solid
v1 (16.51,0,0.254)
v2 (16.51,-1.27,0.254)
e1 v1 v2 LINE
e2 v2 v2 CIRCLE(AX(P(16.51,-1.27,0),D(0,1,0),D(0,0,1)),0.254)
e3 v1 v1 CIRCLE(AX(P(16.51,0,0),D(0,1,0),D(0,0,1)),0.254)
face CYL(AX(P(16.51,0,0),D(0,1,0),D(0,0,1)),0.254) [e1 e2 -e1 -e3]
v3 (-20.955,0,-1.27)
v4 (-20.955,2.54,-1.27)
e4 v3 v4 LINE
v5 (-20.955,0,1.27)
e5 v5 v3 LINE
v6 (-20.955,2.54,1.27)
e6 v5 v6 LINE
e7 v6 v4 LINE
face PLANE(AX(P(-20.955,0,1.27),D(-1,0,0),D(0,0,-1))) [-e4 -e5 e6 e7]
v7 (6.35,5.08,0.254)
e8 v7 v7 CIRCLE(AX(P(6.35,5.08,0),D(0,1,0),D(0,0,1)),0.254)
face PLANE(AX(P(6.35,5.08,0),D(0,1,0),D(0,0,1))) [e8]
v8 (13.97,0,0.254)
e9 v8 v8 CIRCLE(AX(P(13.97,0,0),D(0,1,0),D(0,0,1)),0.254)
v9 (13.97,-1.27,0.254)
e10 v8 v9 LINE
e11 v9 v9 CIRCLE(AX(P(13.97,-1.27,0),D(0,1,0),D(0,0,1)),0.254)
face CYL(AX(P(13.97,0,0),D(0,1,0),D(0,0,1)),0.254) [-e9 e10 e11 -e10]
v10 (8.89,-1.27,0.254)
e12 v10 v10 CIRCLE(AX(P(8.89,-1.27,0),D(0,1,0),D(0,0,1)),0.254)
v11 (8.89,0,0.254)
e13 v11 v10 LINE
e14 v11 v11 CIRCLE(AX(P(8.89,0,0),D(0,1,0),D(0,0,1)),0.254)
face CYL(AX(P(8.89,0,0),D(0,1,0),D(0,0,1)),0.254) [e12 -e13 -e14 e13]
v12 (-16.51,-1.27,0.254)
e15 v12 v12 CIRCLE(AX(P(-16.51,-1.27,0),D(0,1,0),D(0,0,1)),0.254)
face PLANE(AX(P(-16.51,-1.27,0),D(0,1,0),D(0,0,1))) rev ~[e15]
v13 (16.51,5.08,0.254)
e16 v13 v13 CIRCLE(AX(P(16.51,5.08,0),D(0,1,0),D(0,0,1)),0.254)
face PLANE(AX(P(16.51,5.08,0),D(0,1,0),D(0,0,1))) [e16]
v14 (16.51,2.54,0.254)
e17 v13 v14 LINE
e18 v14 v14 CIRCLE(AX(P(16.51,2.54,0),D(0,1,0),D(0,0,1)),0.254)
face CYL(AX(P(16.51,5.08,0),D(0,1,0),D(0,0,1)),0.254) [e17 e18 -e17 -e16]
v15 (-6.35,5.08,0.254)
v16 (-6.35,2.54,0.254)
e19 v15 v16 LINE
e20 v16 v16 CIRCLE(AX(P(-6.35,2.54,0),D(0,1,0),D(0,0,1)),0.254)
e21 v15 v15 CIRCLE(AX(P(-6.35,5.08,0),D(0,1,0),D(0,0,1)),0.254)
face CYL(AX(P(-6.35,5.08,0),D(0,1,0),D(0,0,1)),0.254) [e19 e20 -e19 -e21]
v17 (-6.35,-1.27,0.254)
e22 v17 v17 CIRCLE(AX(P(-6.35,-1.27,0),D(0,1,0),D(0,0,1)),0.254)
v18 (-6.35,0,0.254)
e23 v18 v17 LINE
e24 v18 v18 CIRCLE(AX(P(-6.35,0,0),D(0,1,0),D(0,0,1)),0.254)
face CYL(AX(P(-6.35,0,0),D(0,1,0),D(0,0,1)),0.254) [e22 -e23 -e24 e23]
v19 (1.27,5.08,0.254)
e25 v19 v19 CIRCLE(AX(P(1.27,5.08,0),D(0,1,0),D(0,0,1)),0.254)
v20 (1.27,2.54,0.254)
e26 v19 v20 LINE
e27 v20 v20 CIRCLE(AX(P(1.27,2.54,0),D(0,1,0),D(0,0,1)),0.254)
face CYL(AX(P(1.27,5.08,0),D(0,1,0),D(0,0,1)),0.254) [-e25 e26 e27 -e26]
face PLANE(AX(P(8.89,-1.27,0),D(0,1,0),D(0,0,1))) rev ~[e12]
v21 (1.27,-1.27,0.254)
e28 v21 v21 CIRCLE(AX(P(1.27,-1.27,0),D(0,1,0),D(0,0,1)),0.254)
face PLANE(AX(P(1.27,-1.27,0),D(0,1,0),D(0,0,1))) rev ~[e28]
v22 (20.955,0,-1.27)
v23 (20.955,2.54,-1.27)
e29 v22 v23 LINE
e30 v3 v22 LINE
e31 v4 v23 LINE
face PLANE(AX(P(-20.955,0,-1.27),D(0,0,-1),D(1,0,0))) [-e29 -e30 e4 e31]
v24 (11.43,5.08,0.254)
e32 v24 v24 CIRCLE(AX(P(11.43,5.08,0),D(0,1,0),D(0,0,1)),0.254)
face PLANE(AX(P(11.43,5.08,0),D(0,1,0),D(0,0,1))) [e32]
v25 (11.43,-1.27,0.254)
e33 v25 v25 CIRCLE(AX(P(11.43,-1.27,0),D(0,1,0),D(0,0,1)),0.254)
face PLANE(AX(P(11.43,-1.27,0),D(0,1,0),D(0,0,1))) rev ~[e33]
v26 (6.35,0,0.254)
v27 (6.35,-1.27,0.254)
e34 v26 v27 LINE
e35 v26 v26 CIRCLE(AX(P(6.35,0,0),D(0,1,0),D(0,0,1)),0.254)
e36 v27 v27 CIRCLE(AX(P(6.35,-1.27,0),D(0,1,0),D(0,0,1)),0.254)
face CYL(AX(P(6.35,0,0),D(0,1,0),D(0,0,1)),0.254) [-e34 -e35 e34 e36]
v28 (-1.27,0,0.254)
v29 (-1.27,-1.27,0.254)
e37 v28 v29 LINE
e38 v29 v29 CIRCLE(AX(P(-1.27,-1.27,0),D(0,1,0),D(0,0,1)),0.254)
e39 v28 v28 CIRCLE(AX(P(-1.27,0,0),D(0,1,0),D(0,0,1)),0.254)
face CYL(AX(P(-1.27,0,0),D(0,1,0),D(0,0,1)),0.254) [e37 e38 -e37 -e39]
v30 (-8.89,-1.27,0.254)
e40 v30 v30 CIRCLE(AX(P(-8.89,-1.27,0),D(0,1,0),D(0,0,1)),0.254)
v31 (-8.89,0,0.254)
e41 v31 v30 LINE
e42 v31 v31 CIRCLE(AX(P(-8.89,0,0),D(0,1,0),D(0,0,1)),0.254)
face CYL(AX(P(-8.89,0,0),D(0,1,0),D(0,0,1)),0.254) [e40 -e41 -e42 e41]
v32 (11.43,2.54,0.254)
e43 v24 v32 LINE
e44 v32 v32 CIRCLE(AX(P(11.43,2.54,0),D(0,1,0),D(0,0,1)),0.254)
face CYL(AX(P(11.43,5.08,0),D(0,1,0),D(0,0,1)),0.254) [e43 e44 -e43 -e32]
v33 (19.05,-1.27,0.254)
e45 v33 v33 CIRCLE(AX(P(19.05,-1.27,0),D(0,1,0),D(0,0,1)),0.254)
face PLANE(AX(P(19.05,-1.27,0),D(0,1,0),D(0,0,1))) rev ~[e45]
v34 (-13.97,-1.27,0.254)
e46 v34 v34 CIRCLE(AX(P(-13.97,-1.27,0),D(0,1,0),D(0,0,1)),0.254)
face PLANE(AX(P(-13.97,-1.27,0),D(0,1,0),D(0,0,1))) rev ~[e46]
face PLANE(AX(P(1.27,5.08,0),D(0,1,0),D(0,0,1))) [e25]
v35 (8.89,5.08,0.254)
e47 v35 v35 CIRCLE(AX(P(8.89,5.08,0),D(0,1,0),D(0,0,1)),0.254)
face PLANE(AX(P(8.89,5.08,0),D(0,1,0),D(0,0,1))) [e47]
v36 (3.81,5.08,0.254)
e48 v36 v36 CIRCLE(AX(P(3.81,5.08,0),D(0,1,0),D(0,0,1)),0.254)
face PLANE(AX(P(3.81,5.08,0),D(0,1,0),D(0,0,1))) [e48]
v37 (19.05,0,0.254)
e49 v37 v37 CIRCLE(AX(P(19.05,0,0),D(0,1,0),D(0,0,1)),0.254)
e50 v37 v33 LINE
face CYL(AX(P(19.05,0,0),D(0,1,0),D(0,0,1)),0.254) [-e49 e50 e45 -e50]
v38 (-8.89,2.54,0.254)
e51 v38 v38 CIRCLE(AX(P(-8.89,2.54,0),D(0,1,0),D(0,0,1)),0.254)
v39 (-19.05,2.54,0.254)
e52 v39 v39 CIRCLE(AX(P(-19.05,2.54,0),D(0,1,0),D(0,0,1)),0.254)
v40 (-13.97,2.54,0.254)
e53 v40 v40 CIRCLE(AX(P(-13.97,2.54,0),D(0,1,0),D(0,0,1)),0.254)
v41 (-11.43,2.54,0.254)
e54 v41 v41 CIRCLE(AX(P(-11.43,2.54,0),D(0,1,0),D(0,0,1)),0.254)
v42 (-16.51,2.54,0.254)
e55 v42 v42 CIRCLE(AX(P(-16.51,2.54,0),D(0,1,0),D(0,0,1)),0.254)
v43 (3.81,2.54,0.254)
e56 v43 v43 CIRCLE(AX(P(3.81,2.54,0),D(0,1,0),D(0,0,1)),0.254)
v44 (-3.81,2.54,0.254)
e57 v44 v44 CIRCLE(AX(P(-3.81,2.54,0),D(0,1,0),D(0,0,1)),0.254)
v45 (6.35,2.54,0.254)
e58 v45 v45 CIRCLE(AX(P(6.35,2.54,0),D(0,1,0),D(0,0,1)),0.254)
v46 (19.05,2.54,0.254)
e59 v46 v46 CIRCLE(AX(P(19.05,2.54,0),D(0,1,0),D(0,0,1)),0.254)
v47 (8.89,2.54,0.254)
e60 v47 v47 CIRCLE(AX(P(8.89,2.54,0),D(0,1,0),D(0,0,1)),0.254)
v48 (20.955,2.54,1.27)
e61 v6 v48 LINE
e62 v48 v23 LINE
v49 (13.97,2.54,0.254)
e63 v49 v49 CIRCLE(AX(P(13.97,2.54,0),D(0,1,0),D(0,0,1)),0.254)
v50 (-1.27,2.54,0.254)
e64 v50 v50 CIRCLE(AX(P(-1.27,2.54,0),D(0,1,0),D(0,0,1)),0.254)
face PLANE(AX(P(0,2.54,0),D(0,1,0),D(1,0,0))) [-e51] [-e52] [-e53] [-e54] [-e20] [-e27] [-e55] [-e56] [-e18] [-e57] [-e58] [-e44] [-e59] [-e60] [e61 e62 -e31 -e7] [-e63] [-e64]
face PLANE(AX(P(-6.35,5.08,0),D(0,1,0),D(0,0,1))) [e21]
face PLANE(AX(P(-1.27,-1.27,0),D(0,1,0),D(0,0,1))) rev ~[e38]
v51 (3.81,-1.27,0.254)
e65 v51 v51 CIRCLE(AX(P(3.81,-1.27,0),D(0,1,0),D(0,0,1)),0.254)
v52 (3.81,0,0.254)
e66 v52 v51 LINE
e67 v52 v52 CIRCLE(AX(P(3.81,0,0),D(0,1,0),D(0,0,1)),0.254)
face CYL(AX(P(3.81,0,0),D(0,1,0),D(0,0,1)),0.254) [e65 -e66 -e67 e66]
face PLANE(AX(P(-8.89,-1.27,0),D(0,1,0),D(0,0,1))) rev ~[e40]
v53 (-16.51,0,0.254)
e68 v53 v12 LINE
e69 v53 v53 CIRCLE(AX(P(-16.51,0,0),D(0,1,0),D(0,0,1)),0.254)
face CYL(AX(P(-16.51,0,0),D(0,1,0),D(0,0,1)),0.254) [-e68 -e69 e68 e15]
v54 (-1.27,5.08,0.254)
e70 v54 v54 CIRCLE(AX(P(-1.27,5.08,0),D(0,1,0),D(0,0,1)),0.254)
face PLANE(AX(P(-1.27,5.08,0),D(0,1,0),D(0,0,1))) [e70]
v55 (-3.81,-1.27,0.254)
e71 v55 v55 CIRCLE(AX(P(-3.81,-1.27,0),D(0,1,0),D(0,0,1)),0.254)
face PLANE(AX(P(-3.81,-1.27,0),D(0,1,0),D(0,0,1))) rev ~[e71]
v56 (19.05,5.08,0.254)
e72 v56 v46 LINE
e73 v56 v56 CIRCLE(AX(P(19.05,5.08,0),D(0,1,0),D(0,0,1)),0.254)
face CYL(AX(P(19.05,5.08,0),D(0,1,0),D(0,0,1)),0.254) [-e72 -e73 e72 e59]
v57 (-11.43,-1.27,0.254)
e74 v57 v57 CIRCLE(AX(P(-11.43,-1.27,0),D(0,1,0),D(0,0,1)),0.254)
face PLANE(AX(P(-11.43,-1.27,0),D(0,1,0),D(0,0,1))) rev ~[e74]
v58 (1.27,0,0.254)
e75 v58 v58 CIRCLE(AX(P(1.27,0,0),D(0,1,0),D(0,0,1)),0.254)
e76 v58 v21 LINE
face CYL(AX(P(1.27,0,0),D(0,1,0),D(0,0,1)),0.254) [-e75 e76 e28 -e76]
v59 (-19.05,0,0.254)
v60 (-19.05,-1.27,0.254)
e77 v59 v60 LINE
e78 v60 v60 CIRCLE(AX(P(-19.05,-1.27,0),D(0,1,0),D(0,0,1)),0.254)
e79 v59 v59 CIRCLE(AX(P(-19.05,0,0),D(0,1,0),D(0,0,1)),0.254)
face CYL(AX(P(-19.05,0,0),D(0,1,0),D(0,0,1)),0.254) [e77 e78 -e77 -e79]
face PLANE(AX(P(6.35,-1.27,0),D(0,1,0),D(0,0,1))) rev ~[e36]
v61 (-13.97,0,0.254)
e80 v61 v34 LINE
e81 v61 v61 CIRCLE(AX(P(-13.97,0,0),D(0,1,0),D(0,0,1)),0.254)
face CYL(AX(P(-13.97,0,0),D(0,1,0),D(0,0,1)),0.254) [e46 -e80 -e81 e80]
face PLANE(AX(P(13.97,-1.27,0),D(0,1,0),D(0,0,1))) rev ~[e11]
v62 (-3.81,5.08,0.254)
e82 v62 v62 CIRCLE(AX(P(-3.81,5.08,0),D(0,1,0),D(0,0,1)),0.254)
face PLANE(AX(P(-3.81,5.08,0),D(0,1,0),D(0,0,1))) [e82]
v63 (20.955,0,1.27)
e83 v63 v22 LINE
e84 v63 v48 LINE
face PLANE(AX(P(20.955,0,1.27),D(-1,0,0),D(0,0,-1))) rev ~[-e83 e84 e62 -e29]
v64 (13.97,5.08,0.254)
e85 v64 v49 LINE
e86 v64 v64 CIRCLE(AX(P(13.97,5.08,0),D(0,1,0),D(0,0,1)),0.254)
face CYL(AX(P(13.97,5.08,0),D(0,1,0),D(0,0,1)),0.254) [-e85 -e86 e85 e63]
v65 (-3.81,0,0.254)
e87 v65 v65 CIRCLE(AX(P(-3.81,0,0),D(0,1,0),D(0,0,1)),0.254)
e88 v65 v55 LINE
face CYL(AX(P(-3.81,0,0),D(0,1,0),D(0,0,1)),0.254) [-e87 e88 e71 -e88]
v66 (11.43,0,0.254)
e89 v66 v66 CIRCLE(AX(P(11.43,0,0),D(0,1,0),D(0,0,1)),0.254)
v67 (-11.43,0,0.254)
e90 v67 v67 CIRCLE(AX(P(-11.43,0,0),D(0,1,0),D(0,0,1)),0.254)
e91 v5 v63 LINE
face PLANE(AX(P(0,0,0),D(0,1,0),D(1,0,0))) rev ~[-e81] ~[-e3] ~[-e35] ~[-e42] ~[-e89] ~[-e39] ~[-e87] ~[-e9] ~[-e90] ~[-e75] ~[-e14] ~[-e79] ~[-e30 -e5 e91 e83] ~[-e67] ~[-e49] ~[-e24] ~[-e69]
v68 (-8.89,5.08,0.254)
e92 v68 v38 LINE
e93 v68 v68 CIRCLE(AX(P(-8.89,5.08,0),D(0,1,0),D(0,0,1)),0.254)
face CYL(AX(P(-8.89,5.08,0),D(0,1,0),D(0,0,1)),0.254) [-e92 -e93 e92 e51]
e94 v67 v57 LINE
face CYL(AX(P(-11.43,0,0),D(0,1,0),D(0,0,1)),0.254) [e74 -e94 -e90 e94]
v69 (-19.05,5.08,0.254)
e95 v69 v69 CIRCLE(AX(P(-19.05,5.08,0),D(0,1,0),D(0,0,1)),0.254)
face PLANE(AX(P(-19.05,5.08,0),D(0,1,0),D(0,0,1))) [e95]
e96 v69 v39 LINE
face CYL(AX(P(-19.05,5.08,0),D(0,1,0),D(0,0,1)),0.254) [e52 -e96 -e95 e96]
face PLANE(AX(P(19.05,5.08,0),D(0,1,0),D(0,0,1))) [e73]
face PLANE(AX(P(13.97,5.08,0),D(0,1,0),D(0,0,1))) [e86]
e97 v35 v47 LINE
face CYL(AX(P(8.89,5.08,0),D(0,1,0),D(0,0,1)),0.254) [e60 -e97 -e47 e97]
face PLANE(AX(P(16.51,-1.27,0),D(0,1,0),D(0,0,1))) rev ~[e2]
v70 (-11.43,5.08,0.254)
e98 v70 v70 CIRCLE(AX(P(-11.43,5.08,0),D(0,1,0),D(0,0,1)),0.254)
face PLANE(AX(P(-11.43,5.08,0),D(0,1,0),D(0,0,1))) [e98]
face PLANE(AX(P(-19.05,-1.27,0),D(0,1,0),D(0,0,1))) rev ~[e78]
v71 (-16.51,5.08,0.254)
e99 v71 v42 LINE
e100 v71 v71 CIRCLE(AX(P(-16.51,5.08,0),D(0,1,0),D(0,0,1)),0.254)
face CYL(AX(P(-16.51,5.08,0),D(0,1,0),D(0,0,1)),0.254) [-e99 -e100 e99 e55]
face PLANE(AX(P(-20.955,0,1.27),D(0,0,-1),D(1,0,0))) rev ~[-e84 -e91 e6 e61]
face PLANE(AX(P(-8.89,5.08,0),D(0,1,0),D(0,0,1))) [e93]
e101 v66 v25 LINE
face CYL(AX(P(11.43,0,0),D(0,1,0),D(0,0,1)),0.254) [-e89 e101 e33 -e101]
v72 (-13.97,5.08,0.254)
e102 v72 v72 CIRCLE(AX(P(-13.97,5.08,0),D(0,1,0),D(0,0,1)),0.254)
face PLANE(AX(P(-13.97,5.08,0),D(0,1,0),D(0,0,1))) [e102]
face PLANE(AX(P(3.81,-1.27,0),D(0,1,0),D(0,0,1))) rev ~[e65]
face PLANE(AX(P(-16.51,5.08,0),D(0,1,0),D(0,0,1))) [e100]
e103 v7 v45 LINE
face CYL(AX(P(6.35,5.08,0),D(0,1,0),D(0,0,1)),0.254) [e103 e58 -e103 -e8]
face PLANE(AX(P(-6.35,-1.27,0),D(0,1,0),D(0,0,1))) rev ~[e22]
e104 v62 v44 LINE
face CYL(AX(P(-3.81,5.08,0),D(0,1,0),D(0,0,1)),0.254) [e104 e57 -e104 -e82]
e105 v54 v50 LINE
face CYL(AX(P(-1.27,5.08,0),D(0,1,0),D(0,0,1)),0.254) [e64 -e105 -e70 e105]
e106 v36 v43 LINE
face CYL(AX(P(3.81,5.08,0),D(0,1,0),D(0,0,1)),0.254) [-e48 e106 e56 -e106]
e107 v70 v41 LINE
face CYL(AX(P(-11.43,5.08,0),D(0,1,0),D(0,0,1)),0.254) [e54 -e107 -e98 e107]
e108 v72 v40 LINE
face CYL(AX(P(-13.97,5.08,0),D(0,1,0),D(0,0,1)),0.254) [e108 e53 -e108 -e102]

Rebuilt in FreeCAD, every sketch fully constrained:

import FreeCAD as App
import Part
import Sketcher

V = App.Vector
Q = App.Units.Quantity


def add_polygon(sketch, points):
    """Adds a closed chain of lines whose ends are joined by coincident constraints."""
    first, n = sketch.GeometryCount, len(points)
    for a, b in zip(points, points[1:] + points[:1]):
        sketch.addGeometry(Part.LineSegment(App.Vector(*a, 0), App.Vector(*b, 0)), False)
    for i in range(n):
        sketch.addConstraint(Sketcher.Constraint("Coincident", first + i, 2, first + (i + 1) % n, 1))

doc = App.newDocument("Part")
body = doc.addObject("PartDesign::Body", "Body")

# Sketch on XZ plane
sketch1 = body.newObject("Sketcher::SketchObject", "Sketch")
sketch1.AttachmentSupport = (doc.getObject("XZ_Plane"), [""])
sketch1.MapMode = "FlatFace"
add_polygon(sketch1, [(-21, -1.3), (-21, 1.3), (21, 1.3), (21, -1.3)])  # lines 0-3
sketch1.addConstraint([
    Sketcher.Constraint("Vertical", 0),
    Sketcher.Constraint("Horizontal", 1),
    Sketcher.Constraint("Vertical", 2),
    Sketcher.Constraint("Horizontal", 3),
    Sketcher.Constraint("Symmetric", 0, 2, 2, 2, -1, 1),
    Sketcher.Constraint("DistanceY", 0, 1, 0, 2, Q("0.1 in")),
    Sketcher.Constraint("DistanceX", 1, 1, 1, 2, Q("1.65 in")),
])
pad1 = body.newObject("PartDesign::Pad", "Pad")
pad1.Profile = sketch1
pad1.Length = Q("0.1 in")
pad1.Reversed = True

# Sketch on XZ plane
sketch2 = body.newObject("Sketcher::SketchObject", "Sketch001")
sketch2.AttachmentSupport = (doc.getObject("XZ_Plane"), [""])
sketch2.MapMode = "FlatFace"
sketch2.addGeometry([
    Part.Circle(V(19.05, 0, 0), V(0, 0, 1), 0.25),  # 0
    Part.Circle(V(16.51, 0, 0), V(0, 0, 1), 0.25),  # 1
    Part.Circle(V(13.97, 0, 0), V(0, 0, 1), 0.25),  # 2
    Part.Circle(V(11.43, 0, 0), V(0, 0, 1), 0.25),  # 3
    Part.Circle(V(8.89, 0, 0), V(0, 0, 1), 0.25),  # 4
    Part.Circle(V(6.35, 0, 0), V(0, 0, 1), 0.25),  # 5
    Part.Circle(V(3.81, 0, 0), V(0, 0, 1), 0.25),  # 6
    Part.Circle(V(1.27, 0, 0), V(0, 0, 1), 0.25),  # 7
    Part.Circle(V(-1.27, 0, 0), V(0, 0, 1), 0.25),  # 8
    Part.Circle(V(-3.81, 0, 0), V(0, 0, 1), 0.25),  # 9
    Part.Circle(V(-6.35, 0, 0), V(0, 0, 1), 0.25),  # 10
    Part.Circle(V(-8.89, 0, 0), V(0, 0, 1), 0.25),  # 11
    Part.Circle(V(-11.43, 0, 0), V(0, 0, 1), 0.25),  # 12
    Part.Circle(V(-13.97, 0, 0), V(0, 0, 1), 0.25),  # 13
    Part.Circle(V(-16.51, 0, 0), V(0, 0, 1), 0.25),  # 14
    Part.Circle(V(-19.05, 0, 0), V(0, 0, 1), 0.25),  # 15
], False)
sketch2.addConstraint([
    Sketcher.Constraint("Equal", 0, 1),
    Sketcher.Constraint("Equal", 1, 2),
    Sketcher.Constraint("Equal", 2, 3),
    Sketcher.Constraint("Equal", 3, 4),
    Sketcher.Constraint("Equal", 4, 5),
    Sketcher.Constraint("Equal", 5, 6),
    Sketcher.Constraint("Equal", 6, 7),
    Sketcher.Constraint("Equal", 7, 8),
    Sketcher.Constraint("Equal", 8, 9),
    Sketcher.Constraint("Equal", 9, 10),
    Sketcher.Constraint("Equal", 10, 11),
    Sketcher.Constraint("Equal", 11, 12),
    Sketcher.Constraint("Equal", 12, 13),
    Sketcher.Constraint("Equal", 13, 14),
    Sketcher.Constraint("Equal", 14, 15),
    Sketcher.Constraint("Symmetric", 7, 3, 8, 3, -1, 1),
    Sketcher.Constraint("Symmetric", 6, 3, 9, 3, -1, 1),
    Sketcher.Constraint("Symmetric", 5, 3, 10, 3, -1, 1),
    Sketcher.Constraint("Symmetric", 4, 3, 11, 3, -1, 1),
    Sketcher.Constraint("Symmetric", 3, 3, 12, 3, -1, 1),
    Sketcher.Constraint("Symmetric", 2, 3, 13, 3, -1, 1),
    Sketcher.Constraint("Symmetric", 1, 3, 14, 3, -1, 1),
    Sketcher.Constraint("Symmetric", 0, 3, 15, 3, -1, 1),
    Sketcher.Constraint("PointOnObject", 0, 3, -1),
    Sketcher.Constraint("PointOnObject", 1, 3, -1),
    Sketcher.Constraint("PointOnObject", 2, 3, -1),
    Sketcher.Constraint("PointOnObject", 3, 3, -1),
    Sketcher.Constraint("PointOnObject", 4, 3, -1),
    Sketcher.Constraint("PointOnObject", 5, 3, -1),
    Sketcher.Constraint("PointOnObject", 6, 3, -1),
    Sketcher.Constraint("PointOnObject", 7, 3, -1),
    Sketcher.Constraint("Diameter", 0, Q("0.02 in")),
    Sketcher.Constraint("DistanceX", 1, 3, 0, 3, Q("0.1 in")),
    Sketcher.Constraint("DistanceX", 2, 3, 1, 3, Q("0.1 in")),
    Sketcher.Constraint("DistanceX", 3, 3, 2, 3, Q("0.1 in")),
    Sketcher.Constraint("DistanceX", 4, 3, 3, 3, Q("0.1 in")),
    Sketcher.Constraint("DistanceX", 5, 3, 4, 3, Q("0.1 in")),
    Sketcher.Constraint("DistanceX", 6, 3, 5, 3, Q("0.1 in")),
    Sketcher.Constraint("DistanceX", 7, 3, 6, 3, Q("0.1 in")),
    Sketcher.Constraint("DistanceX", 8, 3, 7, 3, Q("0.1 in")),
])
pad2 = body.newObject("PartDesign::Pad", "Pad001")
pad2.Profile = sketch2
pad2.Length = Q("0.05 in")

# Sketch on XZ plane
sketch3 = body.newObject("Sketcher::SketchObject", "Sketch002")
sketch3.AttachmentSupport = (doc.getObject("XZ_Plane"), [""])
sketch3.MapMode = "FlatFace"
sketch3.AttachmentOffset = App.Placement(V(0, 0, -0.2 * 25.4), App.Rotation())
sketch3.addGeometry([
    Part.Circle(V(6.35, 0, 0), V(0, 0, 1), 0.25),  # 0
    Part.Circle(V(8.89, 0, 0), V(0, 0, 1), 0.25),  # 1
    Part.Circle(V(11.43, 0, 0), V(0, 0, 1), 0.25),  # 2
    Part.Circle(V(13.97, 0, 0), V(0, 0, 1), 0.25),  # 3
    Part.Circle(V(16.51, 0, 0), V(0, 0, 1), 0.25),  # 4
    Part.Circle(V(19.05, 0, 0), V(0, 0, 1), 0.25),  # 5
    Part.Circle(V(-13.97, 0, 0), V(0, 0, 1), 0.25),  # 6
    Part.Circle(V(-11.43, 0, 0), V(0, 0, 1), 0.25),  # 7
    Part.Circle(V(-8.89, 0, 0), V(0, 0, 1), 0.25),  # 8
    Part.Circle(V(-6.35, 0, 0), V(0, 0, 1), 0.25),  # 9
    Part.Circle(V(-3.81, 0, 0), V(0, 0, 1), 0.25),  # 10
    Part.Circle(V(-1.27, 0, 0), V(0, 0, 1), 0.25),  # 11
    Part.Circle(V(1.27, 0, 0), V(0, 0, 1), 0.25),  # 12
    Part.Circle(V(3.81, 0, 0), V(0, 0, 1), 0.25),  # 13
    Part.Circle(V(-19.05, 0, 0), V(0, 0, 1), 0.25),  # 14
    Part.Circle(V(-16.51, 0, 0), V(0, 0, 1), 0.25),  # 15
], False)
sketch3.addConstraint([
    Sketcher.Constraint("Equal", 0, 1),
    Sketcher.Constraint("Equal", 1, 2),
    Sketcher.Constraint("Equal", 2, 3),
    Sketcher.Constraint("Equal", 3, 4),
    Sketcher.Constraint("Equal", 4, 5),
    Sketcher.Constraint("Equal", 5, 6),
    Sketcher.Constraint("Equal", 6, 7),
    Sketcher.Constraint("Equal", 7, 8),
    Sketcher.Constraint("Equal", 8, 9),
    Sketcher.Constraint("Equal", 9, 10),
    Sketcher.Constraint("Equal", 10, 11),
    Sketcher.Constraint("Equal", 11, 12),
    Sketcher.Constraint("Equal", 12, 13),
    Sketcher.Constraint("Equal", 13, 14),
    Sketcher.Constraint("Equal", 14, 15),
    Sketcher.Constraint("Symmetric", 3, 3, 6, 3, -1, 1),
    Sketcher.Constraint("Symmetric", 2, 3, 7, 3, -1, 1),
    Sketcher.Constraint("Symmetric", 1, 3, 8, 3, -1, 1),
    Sketcher.Constraint("Symmetric", 0, 3, 9, 3, -1, 1),
    Sketcher.Constraint("Symmetric", 11, 3, 12, 3, -1, 1),
    Sketcher.Constraint("Symmetric", 10, 3, 13, 3, -1, 1),
    Sketcher.Constraint("Symmetric", 5, 3, 14, 3, -1, 1),
    Sketcher.Constraint("Symmetric", 4, 3, 15, 3, -1, 1),
    Sketcher.Constraint("PointOnObject", 0, 3, -1),
    Sketcher.Constraint("PointOnObject", 1, 3, -1),
    Sketcher.Constraint("PointOnObject", 2, 3, -1),
    Sketcher.Constraint("PointOnObject", 3, 3, -1),
    Sketcher.Constraint("PointOnObject", 4, 3, -1),
    Sketcher.Constraint("PointOnObject", 5, 3, -1),
    Sketcher.Constraint("PointOnObject", 10, 3, -1),
    Sketcher.Constraint("PointOnObject", 11, 3, -1),
    Sketcher.Constraint("Diameter", 0, Q("0.02 in")),
    Sketcher.Constraint("DistanceX", 6, 3, 2, 3, Q("1 in")),
    Sketcher.Constraint("DistanceX", 0, 3, 1, 3, Q("0.1 in")),
    Sketcher.Constraint("DistanceX", 1, 3, 2, 3, Q("0.1 in")),
    Sketcher.Constraint("DistanceX", 2, 3, 3, 3, Q("0.1 in")),
    Sketcher.Constraint("DistanceX", 3, 3, 4, 3, Q("0.1 in")),
    Sketcher.Constraint("DistanceX", 4, 3, 5, 3, Q("0.1 in")),
    Sketcher.Constraint("DistanceX", 9, 3, 10, 3, Q("0.1 in")),
    Sketcher.Constraint("DistanceX", 10, 3, 11, 3, Q("0.1 in")),
])
pad3 = body.newObject("PartDesign::Pad", "Pad002")
pad3.Profile = sketch3
pad3.Length = Q("0.1 in")

doc.recompute()
